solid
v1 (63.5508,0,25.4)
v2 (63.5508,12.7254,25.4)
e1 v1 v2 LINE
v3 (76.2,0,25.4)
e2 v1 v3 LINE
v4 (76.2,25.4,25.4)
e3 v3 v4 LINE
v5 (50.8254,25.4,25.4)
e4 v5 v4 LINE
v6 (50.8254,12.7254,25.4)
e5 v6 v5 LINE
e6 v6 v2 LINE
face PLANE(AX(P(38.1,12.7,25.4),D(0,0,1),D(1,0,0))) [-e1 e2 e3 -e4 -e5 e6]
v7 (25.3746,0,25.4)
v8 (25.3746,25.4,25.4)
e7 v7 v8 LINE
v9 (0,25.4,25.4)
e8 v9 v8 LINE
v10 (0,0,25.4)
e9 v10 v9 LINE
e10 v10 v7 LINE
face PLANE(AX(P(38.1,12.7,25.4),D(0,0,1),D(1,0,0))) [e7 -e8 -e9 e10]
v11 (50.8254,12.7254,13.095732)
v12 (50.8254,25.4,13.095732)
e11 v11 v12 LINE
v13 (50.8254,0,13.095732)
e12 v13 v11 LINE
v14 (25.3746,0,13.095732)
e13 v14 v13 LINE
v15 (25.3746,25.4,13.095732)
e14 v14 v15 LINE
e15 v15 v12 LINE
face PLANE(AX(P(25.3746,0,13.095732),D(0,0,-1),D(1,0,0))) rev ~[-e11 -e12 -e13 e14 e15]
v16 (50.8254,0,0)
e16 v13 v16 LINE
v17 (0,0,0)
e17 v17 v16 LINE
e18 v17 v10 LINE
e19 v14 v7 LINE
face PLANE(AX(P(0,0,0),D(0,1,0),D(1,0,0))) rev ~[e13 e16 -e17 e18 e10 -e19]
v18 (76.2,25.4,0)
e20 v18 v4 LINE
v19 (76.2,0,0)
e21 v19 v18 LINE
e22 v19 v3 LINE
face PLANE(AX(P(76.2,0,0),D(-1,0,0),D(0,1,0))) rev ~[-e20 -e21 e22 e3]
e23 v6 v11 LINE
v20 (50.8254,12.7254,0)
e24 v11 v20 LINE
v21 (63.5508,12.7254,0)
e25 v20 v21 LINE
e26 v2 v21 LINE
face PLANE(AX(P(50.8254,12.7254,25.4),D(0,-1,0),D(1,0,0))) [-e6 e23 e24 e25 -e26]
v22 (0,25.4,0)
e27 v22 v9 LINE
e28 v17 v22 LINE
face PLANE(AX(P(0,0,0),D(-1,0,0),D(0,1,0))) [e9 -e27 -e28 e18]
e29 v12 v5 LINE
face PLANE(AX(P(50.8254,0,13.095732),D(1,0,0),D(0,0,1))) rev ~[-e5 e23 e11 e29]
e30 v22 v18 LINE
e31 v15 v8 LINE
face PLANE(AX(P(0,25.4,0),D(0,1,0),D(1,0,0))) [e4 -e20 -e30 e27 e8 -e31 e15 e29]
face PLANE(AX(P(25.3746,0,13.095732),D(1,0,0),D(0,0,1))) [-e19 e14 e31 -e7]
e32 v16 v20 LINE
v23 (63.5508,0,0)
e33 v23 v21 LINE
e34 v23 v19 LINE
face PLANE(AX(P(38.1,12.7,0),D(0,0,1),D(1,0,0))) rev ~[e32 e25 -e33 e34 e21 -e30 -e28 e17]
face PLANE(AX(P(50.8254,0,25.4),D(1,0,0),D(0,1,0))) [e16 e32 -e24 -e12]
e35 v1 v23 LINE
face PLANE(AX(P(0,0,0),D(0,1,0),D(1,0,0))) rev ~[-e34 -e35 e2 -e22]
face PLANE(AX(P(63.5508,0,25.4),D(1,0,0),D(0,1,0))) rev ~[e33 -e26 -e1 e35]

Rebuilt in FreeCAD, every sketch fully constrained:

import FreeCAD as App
import Part
import Sketcher
from FreeCAD import Vector
Q = App.Units.Quantity


def add_polygon(sketch, points):
    """Adds a closed chain of lines whose ends are joined by coincident constraints."""
    first, n = sketch.GeometryCount, len(points)
    for a, b in zip(points, points[1:] + points[:1]):
        sketch.addGeometry(Part.LineSegment(App.Vector(*a, 0), App.Vector(*b, 0)), False)
    for i in range(n):
        sketch.addConstraint(Sketcher.Constraint("Coincident", first + i, 2, first + (i + 1) % n, 1))

doc = App.newDocument("Part")
body = doc.addObject("PartDesign::Body", "Body")

# Sketch on XY plane
sketch1 = doc.addObject("Sketcher::SketchObject", "Sketch")
body.addObject(sketch1)
sketch1.AttachmentSupport = (doc.XY_Plane, [""])
sketch1.MapMode = "FlatFace"
add_polygon(sketch1, [(0, 25.4), (0, 0), (76.2, 0), (76.2, 25.4)])  # lines 0-3
sketch1.addConstraint([
    Sketcher.Constraint("Vertical", 0),
    Sketcher.Constraint("Horizontal", 1),
    Sketcher.Constraint("Vertical", 2),
    Sketcher.Constraint("Horizontal", 3),
    Sketcher.Constraint("Coincident", 0, 2, -1, 1),
    Sketcher.Constraint("DistanceX", 1, 1, 1, 2, Q("3 in")),
    Sketcher.Constraint("DistanceY", 0, 2, 0, 1, Q("1 in")),
])
pad1 = doc.addObject("PartDesign::Pad", "Pad")
body.addObject(pad1)
pad1.Profile = sketch1
pad1.Length = Q("1 in")

# Sketch on XZ plane
sketch2 = doc.addObject("Sketcher::SketchObject", "Sketch001")
body.addObject(sketch2)
sketch2.AttachmentSupport = (doc.XZ_Plane, [""])
sketch2.MapMode = "FlatFace"
add_polygon(sketch2, [(25.3746, 25.821132), (25.3746, 13.095732), (50.8254, 13.095732), (50.8254, 25.821132)])  # lines 0-3
sketch2.addConstraint([
    Sketcher.Constraint("Vertical", 0),
    Sketcher.Constraint("Horizontal", 1),
    Sketcher.Constraint("Vertical", 2),
    Sketcher.Constraint("Horizontal", 3),
    Sketcher.Constraint("DistanceX", 1, 1, 1, 2, Q("1.002 in")),
    Sketcher.Constraint("DistanceY", 0, 2, 0, 1, Q("0.501 in")),
    Sketcher.Constraint("DistanceX", -1, 1, 0, 2, Q("0.999 in")),
    Sketcher.Constraint("DistanceY", -1, 1, 2, 2, 25.821132),
])
pocket1 = doc.addObject("PartDesign::Pocket", "Pocket")
body.addObject(pocket1)
pocket1.Profile = sketch2
pocket1.Length = Q("1 in")

# Sketch on XY plane
sketch3 = doc.addObject("Sketcher::SketchObject", "Sketch002")
body.addObject(sketch3)
sketch3.AttachmentSupport = (doc.XY_Plane, [""])
sketch3.MapMode = "FlatFace"
sketch3.AttachmentOffset = App.Placement(Vector(0, 0, 1 * 25.4), App.Rotation())
add_polygon(sketch3, [(50.8254, 12.7254), (50.8254, 0), (63.5508, 0), (63.5508, 12.7254)])  # lines 0-3
sketch3.addConstraint([
    Sketcher.Constraint("Vertical", 0),
    Sketcher.Constraint("Horizontal", 1),
    Sketcher.Constraint("Vertical", 2),
    Sketcher.Constraint("Horizontal", 3),
    Sketcher.Constraint("PointOnObject", 0, 2, -1),
    Sketcher.Constraint("Equal", 3, 0),
    Sketcher.Constraint("DistanceX", 1, 1, 1, 2, Q("0.501 in")),
    Sketcher.Constraint("DistanceX", -1, 1, 0, 2, Q("2.001 in")),
])
pocket2 = doc.addObject("PartDesign::Pocket", "Pocket001")
body.addObject(pocket2)
pocket2.Profile = sketch3
pocket2.Length = Q("1 in")

doc.recompute()
